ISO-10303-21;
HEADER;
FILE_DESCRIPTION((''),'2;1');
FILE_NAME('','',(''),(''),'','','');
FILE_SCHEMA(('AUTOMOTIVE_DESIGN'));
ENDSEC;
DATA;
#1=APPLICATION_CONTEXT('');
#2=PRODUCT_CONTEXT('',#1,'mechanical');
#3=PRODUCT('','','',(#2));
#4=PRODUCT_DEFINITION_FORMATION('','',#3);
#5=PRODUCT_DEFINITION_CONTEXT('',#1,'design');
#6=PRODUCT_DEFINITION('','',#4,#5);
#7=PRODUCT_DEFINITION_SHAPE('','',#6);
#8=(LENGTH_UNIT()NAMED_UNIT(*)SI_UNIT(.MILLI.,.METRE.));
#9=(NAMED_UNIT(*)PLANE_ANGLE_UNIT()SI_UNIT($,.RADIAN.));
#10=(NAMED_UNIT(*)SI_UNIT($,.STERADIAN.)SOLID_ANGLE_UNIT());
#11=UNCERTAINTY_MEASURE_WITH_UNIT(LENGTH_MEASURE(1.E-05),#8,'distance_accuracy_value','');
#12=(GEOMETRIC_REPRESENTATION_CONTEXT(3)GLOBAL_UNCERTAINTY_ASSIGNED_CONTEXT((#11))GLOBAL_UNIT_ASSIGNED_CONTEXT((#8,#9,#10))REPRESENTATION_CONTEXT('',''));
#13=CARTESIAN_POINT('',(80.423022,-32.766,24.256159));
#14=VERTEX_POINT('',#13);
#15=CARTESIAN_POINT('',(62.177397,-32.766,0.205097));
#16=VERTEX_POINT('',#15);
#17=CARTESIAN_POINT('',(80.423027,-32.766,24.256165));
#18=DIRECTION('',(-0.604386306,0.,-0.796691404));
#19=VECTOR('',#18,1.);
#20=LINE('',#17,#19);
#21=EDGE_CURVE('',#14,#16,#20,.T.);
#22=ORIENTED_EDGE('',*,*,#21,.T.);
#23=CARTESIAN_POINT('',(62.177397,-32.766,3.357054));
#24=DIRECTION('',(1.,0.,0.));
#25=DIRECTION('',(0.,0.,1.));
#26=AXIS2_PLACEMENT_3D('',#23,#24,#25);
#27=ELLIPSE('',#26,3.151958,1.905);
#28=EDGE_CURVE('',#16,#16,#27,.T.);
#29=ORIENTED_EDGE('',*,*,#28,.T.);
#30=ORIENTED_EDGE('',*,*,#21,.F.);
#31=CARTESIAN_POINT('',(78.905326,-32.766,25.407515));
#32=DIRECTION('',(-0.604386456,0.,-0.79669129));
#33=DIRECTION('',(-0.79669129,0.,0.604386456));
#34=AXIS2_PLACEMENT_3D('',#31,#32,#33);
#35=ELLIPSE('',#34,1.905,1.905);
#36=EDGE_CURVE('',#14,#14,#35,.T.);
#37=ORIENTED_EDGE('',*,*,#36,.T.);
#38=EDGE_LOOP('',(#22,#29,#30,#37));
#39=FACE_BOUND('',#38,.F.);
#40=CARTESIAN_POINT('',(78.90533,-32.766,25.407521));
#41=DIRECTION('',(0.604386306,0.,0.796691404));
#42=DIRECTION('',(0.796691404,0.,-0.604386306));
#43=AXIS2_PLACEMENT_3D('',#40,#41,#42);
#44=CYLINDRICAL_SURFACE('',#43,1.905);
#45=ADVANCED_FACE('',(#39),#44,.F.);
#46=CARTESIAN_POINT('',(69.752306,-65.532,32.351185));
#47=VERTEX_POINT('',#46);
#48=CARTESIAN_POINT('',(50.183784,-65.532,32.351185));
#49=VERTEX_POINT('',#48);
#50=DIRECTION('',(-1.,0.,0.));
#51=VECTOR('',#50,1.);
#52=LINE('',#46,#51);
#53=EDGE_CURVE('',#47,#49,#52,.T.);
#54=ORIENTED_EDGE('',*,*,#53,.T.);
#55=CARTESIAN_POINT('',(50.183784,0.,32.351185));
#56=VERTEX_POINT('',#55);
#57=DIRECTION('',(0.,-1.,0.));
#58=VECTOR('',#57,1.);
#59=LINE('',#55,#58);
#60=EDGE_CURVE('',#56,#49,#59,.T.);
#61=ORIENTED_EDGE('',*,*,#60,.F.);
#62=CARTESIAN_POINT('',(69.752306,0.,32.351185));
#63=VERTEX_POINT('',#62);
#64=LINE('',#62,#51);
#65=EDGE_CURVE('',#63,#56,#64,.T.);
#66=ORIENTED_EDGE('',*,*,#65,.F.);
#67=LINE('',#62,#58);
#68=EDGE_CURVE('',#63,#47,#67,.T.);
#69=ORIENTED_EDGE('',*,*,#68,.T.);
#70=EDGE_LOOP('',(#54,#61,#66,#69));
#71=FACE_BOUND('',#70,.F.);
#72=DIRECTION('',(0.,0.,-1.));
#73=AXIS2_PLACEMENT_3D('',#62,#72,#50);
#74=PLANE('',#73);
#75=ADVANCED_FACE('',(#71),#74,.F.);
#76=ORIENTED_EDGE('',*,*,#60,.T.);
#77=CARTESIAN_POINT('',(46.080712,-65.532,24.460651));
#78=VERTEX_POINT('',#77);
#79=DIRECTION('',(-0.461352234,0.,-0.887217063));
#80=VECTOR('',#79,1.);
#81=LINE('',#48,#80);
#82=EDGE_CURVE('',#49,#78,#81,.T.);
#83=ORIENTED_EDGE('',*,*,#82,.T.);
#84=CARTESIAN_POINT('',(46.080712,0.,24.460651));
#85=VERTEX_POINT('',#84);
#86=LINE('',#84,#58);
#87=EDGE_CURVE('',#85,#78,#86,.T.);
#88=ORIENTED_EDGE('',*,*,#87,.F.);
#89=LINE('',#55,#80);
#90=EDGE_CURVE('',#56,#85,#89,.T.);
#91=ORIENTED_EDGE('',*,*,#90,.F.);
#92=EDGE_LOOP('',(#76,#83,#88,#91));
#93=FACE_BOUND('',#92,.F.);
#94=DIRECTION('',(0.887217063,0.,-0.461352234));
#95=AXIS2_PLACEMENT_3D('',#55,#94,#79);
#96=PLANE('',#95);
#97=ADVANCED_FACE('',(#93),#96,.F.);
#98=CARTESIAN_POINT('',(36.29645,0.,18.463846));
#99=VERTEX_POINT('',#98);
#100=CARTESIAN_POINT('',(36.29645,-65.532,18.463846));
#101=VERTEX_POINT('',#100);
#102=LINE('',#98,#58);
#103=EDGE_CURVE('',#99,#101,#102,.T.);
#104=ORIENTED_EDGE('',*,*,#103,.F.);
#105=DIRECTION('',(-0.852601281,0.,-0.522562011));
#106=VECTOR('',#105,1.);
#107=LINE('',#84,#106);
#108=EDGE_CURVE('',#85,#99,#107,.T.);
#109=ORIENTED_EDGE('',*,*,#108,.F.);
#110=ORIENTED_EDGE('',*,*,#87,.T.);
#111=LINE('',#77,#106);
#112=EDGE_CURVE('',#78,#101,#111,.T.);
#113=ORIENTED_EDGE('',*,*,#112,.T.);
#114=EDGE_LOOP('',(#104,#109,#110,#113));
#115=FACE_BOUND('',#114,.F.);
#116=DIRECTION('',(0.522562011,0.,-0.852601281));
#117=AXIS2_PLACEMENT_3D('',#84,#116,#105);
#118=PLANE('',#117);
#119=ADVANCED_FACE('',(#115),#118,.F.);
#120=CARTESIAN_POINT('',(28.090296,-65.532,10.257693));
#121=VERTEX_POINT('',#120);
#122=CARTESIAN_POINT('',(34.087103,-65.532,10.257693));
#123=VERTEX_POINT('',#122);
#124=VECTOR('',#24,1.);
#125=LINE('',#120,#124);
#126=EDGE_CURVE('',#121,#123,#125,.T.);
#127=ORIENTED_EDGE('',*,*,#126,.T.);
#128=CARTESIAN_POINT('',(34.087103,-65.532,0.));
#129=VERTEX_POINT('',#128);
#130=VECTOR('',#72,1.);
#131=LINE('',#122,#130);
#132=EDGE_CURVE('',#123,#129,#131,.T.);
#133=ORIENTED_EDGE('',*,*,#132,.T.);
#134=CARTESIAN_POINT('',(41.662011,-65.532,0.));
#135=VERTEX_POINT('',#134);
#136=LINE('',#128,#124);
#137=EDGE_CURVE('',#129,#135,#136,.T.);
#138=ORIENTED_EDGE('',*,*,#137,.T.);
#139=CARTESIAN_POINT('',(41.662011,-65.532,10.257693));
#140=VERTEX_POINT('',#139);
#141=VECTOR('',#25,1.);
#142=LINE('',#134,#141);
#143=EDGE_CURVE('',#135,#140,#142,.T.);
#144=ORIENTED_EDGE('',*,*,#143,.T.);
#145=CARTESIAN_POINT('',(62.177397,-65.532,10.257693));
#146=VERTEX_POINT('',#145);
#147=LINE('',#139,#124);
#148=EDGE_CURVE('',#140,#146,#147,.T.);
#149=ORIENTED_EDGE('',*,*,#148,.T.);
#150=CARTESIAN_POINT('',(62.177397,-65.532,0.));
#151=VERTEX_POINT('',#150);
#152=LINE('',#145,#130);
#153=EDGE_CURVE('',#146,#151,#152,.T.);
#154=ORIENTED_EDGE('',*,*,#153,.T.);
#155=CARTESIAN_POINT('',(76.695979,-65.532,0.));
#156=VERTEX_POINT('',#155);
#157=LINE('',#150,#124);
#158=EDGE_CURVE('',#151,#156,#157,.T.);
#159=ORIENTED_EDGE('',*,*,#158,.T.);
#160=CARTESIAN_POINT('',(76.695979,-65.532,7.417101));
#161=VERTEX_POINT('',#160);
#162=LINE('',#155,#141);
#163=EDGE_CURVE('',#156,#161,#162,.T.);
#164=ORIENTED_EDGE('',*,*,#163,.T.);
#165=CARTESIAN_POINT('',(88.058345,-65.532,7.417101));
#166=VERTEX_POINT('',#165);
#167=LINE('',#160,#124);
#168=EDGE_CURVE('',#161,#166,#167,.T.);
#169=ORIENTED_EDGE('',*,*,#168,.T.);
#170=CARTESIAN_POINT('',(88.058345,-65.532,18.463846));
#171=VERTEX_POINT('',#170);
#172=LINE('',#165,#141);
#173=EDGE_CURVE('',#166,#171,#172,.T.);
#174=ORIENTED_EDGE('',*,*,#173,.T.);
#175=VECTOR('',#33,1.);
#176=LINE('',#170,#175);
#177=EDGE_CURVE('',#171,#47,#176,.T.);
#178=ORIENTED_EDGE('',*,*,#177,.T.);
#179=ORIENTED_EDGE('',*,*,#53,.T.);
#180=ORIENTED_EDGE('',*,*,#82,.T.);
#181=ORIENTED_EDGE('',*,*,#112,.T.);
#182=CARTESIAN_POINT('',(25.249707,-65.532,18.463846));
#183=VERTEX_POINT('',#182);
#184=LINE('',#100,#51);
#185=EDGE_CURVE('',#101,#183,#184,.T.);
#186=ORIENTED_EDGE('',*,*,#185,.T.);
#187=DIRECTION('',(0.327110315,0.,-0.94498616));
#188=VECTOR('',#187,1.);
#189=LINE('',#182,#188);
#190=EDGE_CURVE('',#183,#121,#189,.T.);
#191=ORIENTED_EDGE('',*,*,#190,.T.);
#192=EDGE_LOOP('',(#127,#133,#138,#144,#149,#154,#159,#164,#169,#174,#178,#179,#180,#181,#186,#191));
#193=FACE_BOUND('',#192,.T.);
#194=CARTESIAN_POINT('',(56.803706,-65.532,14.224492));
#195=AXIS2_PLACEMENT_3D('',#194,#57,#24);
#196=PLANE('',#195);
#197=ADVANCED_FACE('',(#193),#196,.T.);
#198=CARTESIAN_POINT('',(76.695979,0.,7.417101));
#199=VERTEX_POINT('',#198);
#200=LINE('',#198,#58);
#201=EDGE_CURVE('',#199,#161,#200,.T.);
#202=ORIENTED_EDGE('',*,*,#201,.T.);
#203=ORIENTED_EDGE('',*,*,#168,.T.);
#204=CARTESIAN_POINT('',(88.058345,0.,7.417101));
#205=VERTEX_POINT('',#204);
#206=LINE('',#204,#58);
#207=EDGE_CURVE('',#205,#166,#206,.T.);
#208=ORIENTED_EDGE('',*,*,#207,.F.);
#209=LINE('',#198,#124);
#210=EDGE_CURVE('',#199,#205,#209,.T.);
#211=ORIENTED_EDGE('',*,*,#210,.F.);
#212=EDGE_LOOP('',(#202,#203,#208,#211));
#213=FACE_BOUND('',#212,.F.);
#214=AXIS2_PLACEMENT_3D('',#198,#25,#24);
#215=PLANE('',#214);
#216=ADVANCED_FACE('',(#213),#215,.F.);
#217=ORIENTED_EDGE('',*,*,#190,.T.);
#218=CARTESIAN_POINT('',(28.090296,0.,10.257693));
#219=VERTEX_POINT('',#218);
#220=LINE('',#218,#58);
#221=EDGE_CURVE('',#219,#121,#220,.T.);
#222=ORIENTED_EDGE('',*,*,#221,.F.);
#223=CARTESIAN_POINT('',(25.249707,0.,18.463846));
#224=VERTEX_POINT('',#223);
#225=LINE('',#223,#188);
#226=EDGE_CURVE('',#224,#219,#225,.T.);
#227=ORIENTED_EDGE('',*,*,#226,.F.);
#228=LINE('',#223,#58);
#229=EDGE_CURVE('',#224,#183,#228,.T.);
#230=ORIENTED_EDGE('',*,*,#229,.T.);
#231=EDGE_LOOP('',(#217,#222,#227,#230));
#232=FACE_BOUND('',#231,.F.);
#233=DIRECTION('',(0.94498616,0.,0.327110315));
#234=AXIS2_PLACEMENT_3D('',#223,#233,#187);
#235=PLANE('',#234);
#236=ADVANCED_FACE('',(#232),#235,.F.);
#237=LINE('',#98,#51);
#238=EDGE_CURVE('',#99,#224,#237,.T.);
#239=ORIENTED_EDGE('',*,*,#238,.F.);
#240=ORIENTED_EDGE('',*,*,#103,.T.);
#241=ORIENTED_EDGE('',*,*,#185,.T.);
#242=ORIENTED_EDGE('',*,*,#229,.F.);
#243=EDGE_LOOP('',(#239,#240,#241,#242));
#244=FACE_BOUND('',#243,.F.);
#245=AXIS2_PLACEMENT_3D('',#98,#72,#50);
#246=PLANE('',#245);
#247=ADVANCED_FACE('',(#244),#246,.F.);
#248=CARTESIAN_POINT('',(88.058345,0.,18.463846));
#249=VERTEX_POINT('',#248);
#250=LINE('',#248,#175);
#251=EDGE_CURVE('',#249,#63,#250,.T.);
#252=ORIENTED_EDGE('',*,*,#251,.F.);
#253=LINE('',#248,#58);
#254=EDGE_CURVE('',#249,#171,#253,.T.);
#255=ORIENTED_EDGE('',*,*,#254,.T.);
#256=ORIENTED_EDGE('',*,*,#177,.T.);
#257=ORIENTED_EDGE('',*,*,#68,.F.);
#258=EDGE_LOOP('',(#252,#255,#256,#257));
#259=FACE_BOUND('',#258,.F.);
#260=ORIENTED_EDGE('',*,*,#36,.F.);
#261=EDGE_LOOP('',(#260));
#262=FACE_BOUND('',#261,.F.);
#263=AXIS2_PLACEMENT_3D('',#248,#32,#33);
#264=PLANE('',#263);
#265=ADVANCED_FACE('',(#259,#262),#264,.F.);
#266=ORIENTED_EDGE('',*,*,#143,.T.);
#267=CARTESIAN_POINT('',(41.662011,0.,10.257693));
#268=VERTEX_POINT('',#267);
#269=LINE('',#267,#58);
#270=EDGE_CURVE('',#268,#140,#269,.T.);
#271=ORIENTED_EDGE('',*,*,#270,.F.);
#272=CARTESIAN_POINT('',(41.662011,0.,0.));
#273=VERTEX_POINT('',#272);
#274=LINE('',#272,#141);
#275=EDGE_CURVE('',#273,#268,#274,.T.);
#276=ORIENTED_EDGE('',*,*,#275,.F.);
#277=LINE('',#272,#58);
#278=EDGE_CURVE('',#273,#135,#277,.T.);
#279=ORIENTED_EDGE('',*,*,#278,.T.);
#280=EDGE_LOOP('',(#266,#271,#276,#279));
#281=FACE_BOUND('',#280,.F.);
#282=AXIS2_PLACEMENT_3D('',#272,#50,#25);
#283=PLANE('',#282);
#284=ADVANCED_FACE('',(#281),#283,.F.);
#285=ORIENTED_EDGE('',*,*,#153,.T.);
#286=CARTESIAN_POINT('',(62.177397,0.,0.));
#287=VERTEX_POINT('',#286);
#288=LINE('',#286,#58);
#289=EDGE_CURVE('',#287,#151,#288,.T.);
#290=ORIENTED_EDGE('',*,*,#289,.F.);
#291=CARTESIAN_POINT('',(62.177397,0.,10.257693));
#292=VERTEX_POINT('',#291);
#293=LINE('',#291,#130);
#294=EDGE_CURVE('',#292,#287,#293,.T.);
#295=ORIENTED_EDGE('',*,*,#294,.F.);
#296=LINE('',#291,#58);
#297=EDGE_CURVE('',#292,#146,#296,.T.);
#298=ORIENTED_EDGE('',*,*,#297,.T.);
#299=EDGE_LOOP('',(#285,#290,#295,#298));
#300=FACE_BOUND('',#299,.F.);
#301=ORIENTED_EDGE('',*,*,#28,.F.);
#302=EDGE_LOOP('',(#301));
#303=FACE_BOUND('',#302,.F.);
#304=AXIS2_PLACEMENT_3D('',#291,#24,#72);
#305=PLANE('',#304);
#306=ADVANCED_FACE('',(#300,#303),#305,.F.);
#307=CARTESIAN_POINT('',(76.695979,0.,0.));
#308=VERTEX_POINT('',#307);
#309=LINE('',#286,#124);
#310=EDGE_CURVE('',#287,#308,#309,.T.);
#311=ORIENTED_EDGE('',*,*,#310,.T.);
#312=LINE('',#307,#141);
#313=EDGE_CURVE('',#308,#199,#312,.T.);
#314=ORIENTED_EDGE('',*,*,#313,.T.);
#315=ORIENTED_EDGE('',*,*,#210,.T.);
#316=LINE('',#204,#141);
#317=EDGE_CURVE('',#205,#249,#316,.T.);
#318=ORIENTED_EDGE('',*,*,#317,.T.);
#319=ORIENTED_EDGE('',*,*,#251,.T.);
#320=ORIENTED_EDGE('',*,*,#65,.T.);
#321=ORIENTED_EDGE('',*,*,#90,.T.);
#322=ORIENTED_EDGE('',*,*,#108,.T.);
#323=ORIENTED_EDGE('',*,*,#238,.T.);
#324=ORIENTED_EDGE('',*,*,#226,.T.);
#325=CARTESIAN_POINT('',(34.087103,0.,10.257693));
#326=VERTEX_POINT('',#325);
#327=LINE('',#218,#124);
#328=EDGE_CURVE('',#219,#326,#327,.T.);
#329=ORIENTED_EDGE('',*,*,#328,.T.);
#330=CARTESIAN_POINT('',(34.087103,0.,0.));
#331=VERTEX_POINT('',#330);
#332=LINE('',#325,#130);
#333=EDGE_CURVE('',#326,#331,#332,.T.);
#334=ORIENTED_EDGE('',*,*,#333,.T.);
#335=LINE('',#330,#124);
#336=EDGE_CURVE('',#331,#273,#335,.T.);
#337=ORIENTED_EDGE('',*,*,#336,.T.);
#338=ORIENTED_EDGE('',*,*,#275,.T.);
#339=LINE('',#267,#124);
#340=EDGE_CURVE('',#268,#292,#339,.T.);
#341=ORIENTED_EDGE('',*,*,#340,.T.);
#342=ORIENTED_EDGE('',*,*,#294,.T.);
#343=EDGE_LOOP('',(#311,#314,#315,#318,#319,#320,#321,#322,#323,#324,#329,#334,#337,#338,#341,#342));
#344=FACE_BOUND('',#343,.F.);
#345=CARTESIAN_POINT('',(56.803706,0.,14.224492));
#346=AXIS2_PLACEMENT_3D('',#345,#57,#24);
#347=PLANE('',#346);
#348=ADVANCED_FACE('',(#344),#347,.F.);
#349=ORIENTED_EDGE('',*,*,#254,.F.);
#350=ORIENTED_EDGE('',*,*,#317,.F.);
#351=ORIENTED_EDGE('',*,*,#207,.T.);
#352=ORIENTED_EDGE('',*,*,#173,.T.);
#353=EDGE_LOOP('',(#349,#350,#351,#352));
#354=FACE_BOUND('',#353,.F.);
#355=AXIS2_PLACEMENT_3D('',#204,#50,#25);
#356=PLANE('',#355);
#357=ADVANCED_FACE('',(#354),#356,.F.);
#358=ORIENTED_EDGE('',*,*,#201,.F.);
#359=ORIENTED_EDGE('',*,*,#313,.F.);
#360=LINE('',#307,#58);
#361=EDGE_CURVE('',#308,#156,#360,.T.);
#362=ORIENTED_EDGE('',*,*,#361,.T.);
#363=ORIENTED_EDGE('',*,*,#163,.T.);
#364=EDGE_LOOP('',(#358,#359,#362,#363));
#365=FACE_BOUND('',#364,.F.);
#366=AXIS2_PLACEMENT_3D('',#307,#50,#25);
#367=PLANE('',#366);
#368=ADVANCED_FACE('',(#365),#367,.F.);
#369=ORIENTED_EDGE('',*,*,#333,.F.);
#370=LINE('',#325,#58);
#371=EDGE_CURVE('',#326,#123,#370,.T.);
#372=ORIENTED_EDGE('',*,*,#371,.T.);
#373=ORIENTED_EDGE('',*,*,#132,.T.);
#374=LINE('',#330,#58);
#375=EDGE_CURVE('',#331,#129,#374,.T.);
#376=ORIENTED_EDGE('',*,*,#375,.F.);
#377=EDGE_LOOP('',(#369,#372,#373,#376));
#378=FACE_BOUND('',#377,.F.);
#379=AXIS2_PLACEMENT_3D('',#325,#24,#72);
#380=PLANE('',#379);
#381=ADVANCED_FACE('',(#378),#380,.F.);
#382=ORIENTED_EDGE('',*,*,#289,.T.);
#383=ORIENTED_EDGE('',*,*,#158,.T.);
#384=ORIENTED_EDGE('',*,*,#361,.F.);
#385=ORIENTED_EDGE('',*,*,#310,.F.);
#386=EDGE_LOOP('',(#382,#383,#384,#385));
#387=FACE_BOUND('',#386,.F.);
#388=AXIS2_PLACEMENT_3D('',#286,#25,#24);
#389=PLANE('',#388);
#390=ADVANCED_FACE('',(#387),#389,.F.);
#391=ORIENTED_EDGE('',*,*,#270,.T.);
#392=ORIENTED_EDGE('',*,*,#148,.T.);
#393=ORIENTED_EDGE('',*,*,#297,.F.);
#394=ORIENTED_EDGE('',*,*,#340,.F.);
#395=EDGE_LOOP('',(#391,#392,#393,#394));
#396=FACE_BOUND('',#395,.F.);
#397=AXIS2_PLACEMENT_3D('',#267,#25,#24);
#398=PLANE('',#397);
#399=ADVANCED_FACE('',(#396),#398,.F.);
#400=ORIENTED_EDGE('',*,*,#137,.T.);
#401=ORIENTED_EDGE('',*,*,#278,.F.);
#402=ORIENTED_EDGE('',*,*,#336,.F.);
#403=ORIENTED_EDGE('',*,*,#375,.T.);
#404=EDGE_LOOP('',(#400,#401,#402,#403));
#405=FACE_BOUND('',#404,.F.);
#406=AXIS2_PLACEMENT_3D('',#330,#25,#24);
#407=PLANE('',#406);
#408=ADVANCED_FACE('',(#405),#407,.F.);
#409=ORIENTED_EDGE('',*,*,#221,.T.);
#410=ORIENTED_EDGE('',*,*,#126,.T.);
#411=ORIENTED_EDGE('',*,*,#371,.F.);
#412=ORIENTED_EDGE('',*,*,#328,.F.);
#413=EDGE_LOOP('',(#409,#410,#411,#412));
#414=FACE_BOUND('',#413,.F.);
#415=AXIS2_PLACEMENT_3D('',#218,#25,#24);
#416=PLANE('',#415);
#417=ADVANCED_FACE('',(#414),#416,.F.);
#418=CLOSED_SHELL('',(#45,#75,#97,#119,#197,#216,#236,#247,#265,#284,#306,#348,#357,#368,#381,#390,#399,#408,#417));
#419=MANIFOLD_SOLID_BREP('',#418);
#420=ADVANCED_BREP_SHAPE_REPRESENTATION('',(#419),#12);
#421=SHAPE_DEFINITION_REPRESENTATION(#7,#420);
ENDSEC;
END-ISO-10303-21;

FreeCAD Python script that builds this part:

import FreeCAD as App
import Part
import Sketcher

V = App.Vector
Q = App.Units.Quantity


def add_polygon(sketch, points):
    """Adds a closed chain of lines whose ends are joined by coincident constraints."""
    first, n = sketch.GeometryCount, len(points)
    for a, b in zip(points, points[1:] + points[:1]):
        sketch.addGeometry(Part.LineSegment(App.Vector(*a, 0), App.Vector(*b, 0)), False)
    for i in range(n):
        sketch.addConstraint(Sketcher.Constraint("Coincident", first + i, 2, first + (i + 1) % n, 1))

doc = App.newDocument("Part")
body = doc.addObject("PartDesign::Body", "Body")

sketch1 = body.newObject("Sketcher::SketchObject", "Sketch")
sketch1.AttachmentSupport = (doc.getObject("XZ_Plane"), [""])
sketch1.MapMode = "FlatFace"
add_polygon(sketch1, [(34, 10), (34, 0), (42, 0), (42, 10), (62, 10), (62, 0), (77, 0), (77, 7), (88, 7), (88, 18), (70, 32), (50, 32), (46, 24), (36, 18), (25, 18), (28, 10)])
sketch1.addConstraint(Sketcher.Constraint("Vertical", 0))
sketch1.addConstraint(Sketcher.Constraint("Horizontal", 1))
sketch1.addConstraint(Sketcher.Constraint("Vertical", 2))
sketch1.addConstraint(Sketcher.Constraint("Horizontal", 3))
sketch1.addConstraint(Sketcher.Constraint("Vertical", 4))
sketch1.addConstraint(Sketcher.Constraint("Horizontal", 5))
sketch1.addConstraint(Sketcher.Constraint("Vertical", 6))
sketch1.addConstraint(Sketcher.Constraint("Horizontal", 7))
sketch1.addConstraint(Sketcher.Constraint("Vertical", 8))
sketch1.addConstraint(Sketcher.Constraint("Horizontal", 10))
sketch1.addConstraint(Sketcher.Constraint("Horizontal", 13))
sketch1.addConstraint(Sketcher.Constraint("Horizontal", 15))
sketch1.addConstraint(Sketcher.Constraint("PointOnObject", 0, 2, -1))
sketch1.addConstraint(Sketcher.Constraint("PointOnObject", 4, 2, -1))
sketch1.addConstraint(Sketcher.Constraint("Horizontal", 8, 2, 12, 2))
sketch1.addConstraint(Sketcher.Constraint("Horizontal", 3, 2, 14, 2))
sketch1.addConstraint(Sketcher.Constraint("DistanceY", 6, 1, 6, 2, Q("7.417101 mm")))
sketch1.addConstraint(Sketcher.Constraint("DistanceX", 1, 1, 1, 2, Q("7.574908 mm")))
sketch1.addConstraint(Sketcher.Constraint("DistanceX", 5, 1, 5, 2, Q("14.518582 mm")))
sketch1.addConstraint(Sketcher.Constraint("DistanceX", 2, 2, 11, 2, Q("4.418701 mm")))
sketch1.addConstraint(Sketcher.Constraint("Distance", 9, Q("22.977581 mm")))
sketch1.addConstraint(Sketcher.Constraint("DistanceX", 3, 1, 3, 2, Q("20.515386 mm")))
sketch1.addConstraint(Sketcher.Constraint("DistanceX", 7, 1, 7, 2, Q("11.362366 mm")))
sketch1.addConstraint(Sketcher.Constraint("DistanceX", 10, 2, 10, 1, Q("19.568522 mm")))
sketch1.addConstraint(Sketcher.Constraint("DistanceX", 13, 2, 13, 1, Q("11.046743 mm")))
sketch1.addConstraint(Sketcher.Constraint("DistanceX", 15, 1, 15, 2, Q("5.996807 mm")))
sketch1.addConstraint(Sketcher.Constraint("DistanceY", 0, 2, 0, 1, Q("10.257693 mm")))
sketch1.addConstraint(Sketcher.Constraint("DistanceY", 8, 1, 8, 2, Q("11.046745 mm")))
sketch1.addConstraint(Sketcher.Constraint("DistanceX", -1, 1, 1, 2, Q("41.662011 mm")))
sketch1.addConstraint(Sketcher.Constraint("DistanceY", -1, 1, 11, 2, Q("24.460651 mm")))
sketch1.addConstraint(Sketcher.Constraint("DistanceX", -1, 1, 12, 2, Q("36.29645 mm")))
sketch1.addConstraint(Sketcher.Constraint("DistanceX", 9, 2, 8, 2, Q("18.306039 mm")))
pad1 = body.newObject("PartDesign::Pad", "Pad")
pad1.Profile = sketch1
pad1.Length = Q("2.58 in")

sketch2 = body.newObject("Sketcher::SketchObject", "Sketch001")
sketch2.Placement = App.Placement(V(41.056729, 0, 54.12024), App.Rotation(V(0.796691404, 0, -0.604386306), V(0, 1, 0), V(0.604386306, 0, 0.796691404), "ZXY"))
sketch2.addGeometry(Part.Circle(V(47.5, -32.8, 0), V(0, 0, 1), 1.9), False)
sketch2.addConstraint(Sketcher.Constraint("Diameter", 0, Q("0.15 in")))
sketch2.addConstraint(Sketcher.Constraint("DistanceY", 0, 3, -1, 1, Q("1.29 in")))
sketch2.addConstraint(Sketcher.Constraint("DistanceX", -1, 1, 0, 3, Q("47.507229 mm")))
pocket1 = body.newObject("PartDesign::Pocket", "Pocket")
pocket1.Profile = sketch2
pocket1.Type = "ThroughAll"

doc.recompute()
